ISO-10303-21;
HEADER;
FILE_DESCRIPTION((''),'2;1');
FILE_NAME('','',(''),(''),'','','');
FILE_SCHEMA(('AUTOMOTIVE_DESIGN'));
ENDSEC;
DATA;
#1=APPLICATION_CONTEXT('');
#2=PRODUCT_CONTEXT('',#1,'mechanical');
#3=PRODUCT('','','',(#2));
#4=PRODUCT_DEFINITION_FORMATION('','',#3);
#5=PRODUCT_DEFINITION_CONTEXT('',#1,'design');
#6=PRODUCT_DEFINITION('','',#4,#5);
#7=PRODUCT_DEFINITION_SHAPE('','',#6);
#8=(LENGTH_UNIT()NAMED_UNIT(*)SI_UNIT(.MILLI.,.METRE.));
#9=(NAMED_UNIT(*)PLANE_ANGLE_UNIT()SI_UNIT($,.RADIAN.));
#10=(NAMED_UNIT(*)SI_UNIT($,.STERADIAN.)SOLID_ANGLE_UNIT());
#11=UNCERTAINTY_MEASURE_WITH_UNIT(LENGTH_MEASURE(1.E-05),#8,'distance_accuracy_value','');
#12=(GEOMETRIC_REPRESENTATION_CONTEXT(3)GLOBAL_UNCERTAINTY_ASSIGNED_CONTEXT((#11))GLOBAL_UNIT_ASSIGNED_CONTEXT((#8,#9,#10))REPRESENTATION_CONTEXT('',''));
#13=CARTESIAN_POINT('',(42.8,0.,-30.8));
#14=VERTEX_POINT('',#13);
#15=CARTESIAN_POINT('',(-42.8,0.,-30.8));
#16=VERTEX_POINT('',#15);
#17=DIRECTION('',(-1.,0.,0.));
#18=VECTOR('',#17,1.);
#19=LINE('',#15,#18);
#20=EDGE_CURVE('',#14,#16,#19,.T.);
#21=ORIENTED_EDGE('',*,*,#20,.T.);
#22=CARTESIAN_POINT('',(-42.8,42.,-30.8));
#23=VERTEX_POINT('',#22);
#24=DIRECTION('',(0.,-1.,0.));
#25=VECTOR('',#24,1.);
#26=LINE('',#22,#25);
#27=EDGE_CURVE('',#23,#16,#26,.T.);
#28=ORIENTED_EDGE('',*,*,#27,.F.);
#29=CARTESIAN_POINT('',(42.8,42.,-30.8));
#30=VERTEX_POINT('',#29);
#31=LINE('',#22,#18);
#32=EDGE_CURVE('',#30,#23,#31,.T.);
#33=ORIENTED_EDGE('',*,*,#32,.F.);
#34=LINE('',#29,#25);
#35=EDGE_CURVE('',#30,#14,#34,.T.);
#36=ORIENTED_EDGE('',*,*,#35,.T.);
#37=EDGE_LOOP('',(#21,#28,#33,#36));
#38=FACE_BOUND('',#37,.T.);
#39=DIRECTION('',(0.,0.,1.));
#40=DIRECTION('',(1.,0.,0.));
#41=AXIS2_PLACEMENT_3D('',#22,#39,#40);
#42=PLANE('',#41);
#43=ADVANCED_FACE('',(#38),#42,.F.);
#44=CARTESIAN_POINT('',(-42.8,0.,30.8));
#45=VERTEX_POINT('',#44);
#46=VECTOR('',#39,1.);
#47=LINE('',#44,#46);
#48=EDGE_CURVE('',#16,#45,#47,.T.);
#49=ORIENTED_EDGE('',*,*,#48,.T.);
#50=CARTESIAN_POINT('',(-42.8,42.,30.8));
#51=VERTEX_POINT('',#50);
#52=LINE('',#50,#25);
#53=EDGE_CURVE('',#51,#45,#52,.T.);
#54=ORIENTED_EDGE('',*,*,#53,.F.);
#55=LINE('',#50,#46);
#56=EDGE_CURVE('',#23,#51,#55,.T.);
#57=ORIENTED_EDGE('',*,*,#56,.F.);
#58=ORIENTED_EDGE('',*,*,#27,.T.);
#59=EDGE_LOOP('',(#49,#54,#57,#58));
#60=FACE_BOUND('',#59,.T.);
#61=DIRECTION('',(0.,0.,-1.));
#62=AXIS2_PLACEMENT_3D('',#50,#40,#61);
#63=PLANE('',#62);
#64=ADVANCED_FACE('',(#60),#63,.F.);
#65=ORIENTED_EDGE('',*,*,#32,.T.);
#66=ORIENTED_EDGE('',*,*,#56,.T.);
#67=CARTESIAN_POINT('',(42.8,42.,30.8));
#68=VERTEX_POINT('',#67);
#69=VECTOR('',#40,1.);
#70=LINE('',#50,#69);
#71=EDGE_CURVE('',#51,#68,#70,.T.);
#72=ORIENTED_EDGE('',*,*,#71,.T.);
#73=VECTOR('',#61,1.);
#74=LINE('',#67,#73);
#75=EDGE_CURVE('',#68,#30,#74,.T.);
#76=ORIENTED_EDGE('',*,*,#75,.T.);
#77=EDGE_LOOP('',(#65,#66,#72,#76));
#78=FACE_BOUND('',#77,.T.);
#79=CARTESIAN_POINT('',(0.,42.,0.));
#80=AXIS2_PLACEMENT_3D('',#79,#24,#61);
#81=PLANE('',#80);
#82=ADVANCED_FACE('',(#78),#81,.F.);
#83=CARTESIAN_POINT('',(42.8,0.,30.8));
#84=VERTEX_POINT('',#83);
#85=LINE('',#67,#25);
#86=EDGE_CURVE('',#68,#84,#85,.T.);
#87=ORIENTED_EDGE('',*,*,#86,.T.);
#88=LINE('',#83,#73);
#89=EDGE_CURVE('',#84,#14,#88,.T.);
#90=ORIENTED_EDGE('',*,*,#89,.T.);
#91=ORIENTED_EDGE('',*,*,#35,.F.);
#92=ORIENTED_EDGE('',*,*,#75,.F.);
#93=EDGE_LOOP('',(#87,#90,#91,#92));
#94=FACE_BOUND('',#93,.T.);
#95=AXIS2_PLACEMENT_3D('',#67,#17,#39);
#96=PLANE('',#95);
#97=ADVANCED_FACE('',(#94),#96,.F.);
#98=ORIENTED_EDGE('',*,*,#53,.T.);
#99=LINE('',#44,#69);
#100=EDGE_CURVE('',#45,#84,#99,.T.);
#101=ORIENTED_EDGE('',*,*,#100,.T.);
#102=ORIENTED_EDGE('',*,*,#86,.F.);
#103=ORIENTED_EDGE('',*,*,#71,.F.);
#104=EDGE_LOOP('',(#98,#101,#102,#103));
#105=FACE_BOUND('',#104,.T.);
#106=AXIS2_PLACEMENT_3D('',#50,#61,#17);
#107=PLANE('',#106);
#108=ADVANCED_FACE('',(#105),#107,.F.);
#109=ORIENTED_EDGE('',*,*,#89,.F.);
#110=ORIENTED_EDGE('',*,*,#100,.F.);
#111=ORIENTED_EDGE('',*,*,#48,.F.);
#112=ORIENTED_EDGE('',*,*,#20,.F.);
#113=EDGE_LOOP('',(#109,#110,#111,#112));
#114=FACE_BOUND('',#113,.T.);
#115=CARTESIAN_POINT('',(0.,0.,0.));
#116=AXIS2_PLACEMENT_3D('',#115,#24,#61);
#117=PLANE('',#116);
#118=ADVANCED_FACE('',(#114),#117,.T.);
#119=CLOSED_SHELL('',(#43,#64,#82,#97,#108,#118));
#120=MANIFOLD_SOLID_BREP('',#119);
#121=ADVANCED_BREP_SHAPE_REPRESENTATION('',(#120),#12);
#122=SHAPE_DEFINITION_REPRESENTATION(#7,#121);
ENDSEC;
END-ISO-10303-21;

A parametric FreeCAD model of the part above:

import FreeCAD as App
import Part
import Sketcher
from FreeCAD import Vector


def add_polygon(sketch, points):
    """Adds a closed chain of lines whose ends are joined by coincident constraints."""
    first, n = sketch.GeometryCount, len(points)
    for a, b in zip(points, points[1:] + points[:1]):
        sketch.addGeometry(Part.LineSegment(App.Vector(*a, 0), App.Vector(*b, 0)), False)
    for i in range(n):
        sketch.addConstraint(Sketcher.Constraint("Coincident", first + i, 2, first + (i + 1) % n, 1))

doc = App.newDocument("Part")
body = doc.addObject("PartDesign::Body", "Body")

# Sketch on XZ plane
sketch1 = doc.addObject("Sketcher::SketchObject", "Sketch")
body.addObject(sketch1)
sketch1.AttachmentSupport = (doc.XZ_Plane, [""])
sketch1.MapMode = "FlatFace"
add_polygon(sketch1, [(-43, -31), (-43, 31), (43, 31), (43, -31)])  # lines 0-3
sketch1.addConstraint([
    Sketcher.Constraint("Vertical", 0),
    Sketcher.Constraint("Horizontal", 1),
    Sketcher.Constraint("Vertical", 2),
    Sketcher.Constraint("Horizontal", 3),
    Sketcher.Constraint("Symmetric", 0, 2, 2, 2, -1, 1),
    Sketcher.Constraint("DistanceX", 1, 1, 1, 2, 85.6),
    Sketcher.Constraint("DistanceY", 0, 1, 0, 2, 61.6),
])
pad1 = doc.addObject("PartDesign::Pad", "Pad")
body.addObject(pad1)
pad1.Profile = sketch1
pad1.Length = 42
pad1.Reversed = True

doc.recompute()
